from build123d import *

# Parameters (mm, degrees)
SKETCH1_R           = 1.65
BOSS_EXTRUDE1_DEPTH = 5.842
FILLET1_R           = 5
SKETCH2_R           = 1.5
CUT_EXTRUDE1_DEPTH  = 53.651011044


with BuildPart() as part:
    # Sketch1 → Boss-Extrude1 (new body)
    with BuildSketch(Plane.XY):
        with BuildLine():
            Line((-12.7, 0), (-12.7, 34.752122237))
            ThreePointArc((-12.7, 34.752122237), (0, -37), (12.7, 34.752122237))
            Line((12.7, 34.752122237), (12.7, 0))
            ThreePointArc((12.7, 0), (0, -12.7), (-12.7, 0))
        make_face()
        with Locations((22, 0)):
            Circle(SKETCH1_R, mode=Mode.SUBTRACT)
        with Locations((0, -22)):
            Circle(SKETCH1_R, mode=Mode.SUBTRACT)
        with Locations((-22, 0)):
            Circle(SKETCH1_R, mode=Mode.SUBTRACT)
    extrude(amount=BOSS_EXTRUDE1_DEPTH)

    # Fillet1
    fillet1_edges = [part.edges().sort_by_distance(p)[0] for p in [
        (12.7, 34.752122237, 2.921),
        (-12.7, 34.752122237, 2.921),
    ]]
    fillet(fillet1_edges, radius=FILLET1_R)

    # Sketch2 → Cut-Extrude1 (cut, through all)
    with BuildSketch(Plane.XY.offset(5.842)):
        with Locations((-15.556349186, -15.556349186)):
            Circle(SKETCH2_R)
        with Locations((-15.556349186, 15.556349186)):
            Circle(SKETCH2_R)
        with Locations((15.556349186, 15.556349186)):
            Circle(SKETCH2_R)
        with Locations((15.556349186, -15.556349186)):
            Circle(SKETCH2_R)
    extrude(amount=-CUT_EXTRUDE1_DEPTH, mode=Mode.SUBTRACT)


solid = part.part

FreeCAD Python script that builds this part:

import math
import FreeCAD as App
import Part
import Sketcher


def edges_at(feature, points):
    """Names of the edges that pass closest to the given points."""
    edges = feature.Shape.Edges
    near = lambda p: min(range(len(edges)), key=lambda i: edges[i].distToShape(Part.Vertex(*p))[0])
    return sorted({f"Edge{near(p) + 1}" for p in points})

doc = App.newDocument("Part")
body = doc.addObject("PartDesign::Body", "Body")

# Sketch on XY plane
sketch1 = body.newObject("Sketcher::SketchObject", "Sketch")
sketch1.AttachmentSupport = (doc.getObject("XY_Plane"), [""])
sketch1.MapMode = "FlatFace"
sketch1.addGeometry(Part.LineSegment(App.Vector(-12.7, 0, 0), App.Vector(-12.7, 34.8, 0)), False)
sketch1.addGeometry(Part.ArcOfCircle(Part.Circle(App.Vector(0, 0, 0), App.Vector(0, 0, 1), 37), math.radians(110), math.radians(430)), False)
sketch1.addGeometry(Part.LineSegment(App.Vector(12.7, 34.8, 0), App.Vector(12.7, 0, 0)), False)
sketch1.addGeometry(Part.ArcOfCircle(Part.Circle(App.Vector(0, 0, 0), App.Vector(0, 0, 1), 12.7), math.radians(180), math.radians(360)), False)
sketch1.addGeometry(Part.Circle(App.Vector(0, -22, 0), App.Vector(0, 0, 1), 1.6), False)
sketch1.addGeometry(Part.Circle(App.Vector(-22, 0, 0), App.Vector(0, 0, 1), 1.6), False)
sketch1.addGeometry(Part.Circle(App.Vector(22, 0, 0), App.Vector(0, 0, 1), 1.6), False)
sketch1.addConstraint(Sketcher.Constraint("Coincident", 0, 2, 1, 1))
sketch1.addConstraint(Sketcher.Constraint("Coincident", 1, 2, 2, 1))
sketch1.addConstraint(Sketcher.Constraint("Tangent", 2, 2, 3, 2))
sketch1.addConstraint(Sketcher.Constraint("Tangent", 3, 1, 0, 1))
sketch1.addConstraint(Sketcher.Constraint("Vertical", 0))
sketch1.addConstraint(Sketcher.Constraint("Vertical", 2))
sketch1.addConstraint(Sketcher.Constraint("Coincident", 1, 3, -1, 1))
sketch1.addConstraint(Sketcher.Constraint("Coincident", 3, 3, -1, 1))
sketch1.addConstraint(Sketcher.Constraint("Equal", 4, 5))
sketch1.addConstraint(Sketcher.Constraint("Equal", 5, 6))
sketch1.addConstraint(Sketcher.Constraint("Symmetric", 5, 3, 6, 3, -1, 1))
sketch1.addConstraint(Sketcher.Constraint("PointOnObject", 4, 3, -2))
sketch1.addConstraint(Sketcher.Constraint("PointOnObject", 5, 3, -1))
sketch1.addConstraint(Sketcher.Constraint("Radius", 1, 37.0))
sketch1.addConstraint(Sketcher.Constraint("Diameter", 4, 3.3))
sketch1.addConstraint(Sketcher.Constraint("Radius", 3, 12.7))
sketch1.addConstraint(Sketcher.Constraint("DistanceY", 4, 3, -1, 1, 22.0))
sketch1.addConstraint(Sketcher.Constraint("DistanceX", 5, 3, -1, 1, 22.0))
pad1 = body.newObject("PartDesign::Pad", "Pad")
pad1.Profile = sketch1
pad1.Length = 5.842
doc.recompute()

fillet = body.newObject("PartDesign::Fillet", "Fillet")
fillet.Base = (pad1, edges_at(pad1, [(12.7, 34.752, 2.921), (-12.7, 34.752, 2.921)]))
fillet.Radius = 5

# Sketch on XY plane
sketch2 = body.newObject("Sketcher::SketchObject", "Sketch001")
sketch2.AttachmentSupport = (doc.getObject("XY_Plane"), [""])
sketch2.MapMode = "FlatFace"
sketch2.AttachmentOffset = App.Placement(App.Vector(0, 0, 5.842), App.Rotation())
sketch2.addGeometry(Part.Circle(App.Vector(-15.6, -15.6, 0), App.Vector(0, 0, 1), 1.5), False)
sketch2.addGeometry(Part.Circle(App.Vector(-15.6, 15.6, 0), App.Vector(0, 0, 1), 1.5), False)
sketch2.addGeometry(Part.Circle(App.Vector(15.6, 15.6, 0), App.Vector(0, 0, 1), 1.5), False)
sketch2.addGeometry(Part.Circle(App.Vector(15.6, -15.6, 0), App.Vector(0, 0, 1), 1.5), False)
sketch2.addConstraint(Sketcher.Constraint("Equal", 0, 1))
sketch2.addConstraint(Sketcher.Constraint("Equal", 1, 2))
sketch2.addConstraint(Sketcher.Constraint("Equal", 2, 3))
sketch2.addConstraint(Sketcher.Constraint("Symmetric", 0, 3, 2, 3, -1, 1))
sketch2.addConstraint(Sketcher.Constraint("Symmetric", 1, 3, 3, 3, -1, 1))
sketch2.addConstraint(Sketcher.Constraint("Symmetric", 1, 3, 2, 3, -2))
sketch2.addConstraint(Sketcher.Constraint("Diameter", 0, 3.0))
sketch2.addConstraint(Sketcher.Constraint("DistanceY", 0, 3, 1, 3, 31.112698))
sketch2.addConstraint(Sketcher.Constraint("DistanceX", 1, 3, 2, 3, 31.112698))
pocket1 = body.newObject("PartDesign::Pocket", "Pocket")
pocket1.Profile = sketch2
pocket1.Type = "ThroughAll"

doc.recompute()
